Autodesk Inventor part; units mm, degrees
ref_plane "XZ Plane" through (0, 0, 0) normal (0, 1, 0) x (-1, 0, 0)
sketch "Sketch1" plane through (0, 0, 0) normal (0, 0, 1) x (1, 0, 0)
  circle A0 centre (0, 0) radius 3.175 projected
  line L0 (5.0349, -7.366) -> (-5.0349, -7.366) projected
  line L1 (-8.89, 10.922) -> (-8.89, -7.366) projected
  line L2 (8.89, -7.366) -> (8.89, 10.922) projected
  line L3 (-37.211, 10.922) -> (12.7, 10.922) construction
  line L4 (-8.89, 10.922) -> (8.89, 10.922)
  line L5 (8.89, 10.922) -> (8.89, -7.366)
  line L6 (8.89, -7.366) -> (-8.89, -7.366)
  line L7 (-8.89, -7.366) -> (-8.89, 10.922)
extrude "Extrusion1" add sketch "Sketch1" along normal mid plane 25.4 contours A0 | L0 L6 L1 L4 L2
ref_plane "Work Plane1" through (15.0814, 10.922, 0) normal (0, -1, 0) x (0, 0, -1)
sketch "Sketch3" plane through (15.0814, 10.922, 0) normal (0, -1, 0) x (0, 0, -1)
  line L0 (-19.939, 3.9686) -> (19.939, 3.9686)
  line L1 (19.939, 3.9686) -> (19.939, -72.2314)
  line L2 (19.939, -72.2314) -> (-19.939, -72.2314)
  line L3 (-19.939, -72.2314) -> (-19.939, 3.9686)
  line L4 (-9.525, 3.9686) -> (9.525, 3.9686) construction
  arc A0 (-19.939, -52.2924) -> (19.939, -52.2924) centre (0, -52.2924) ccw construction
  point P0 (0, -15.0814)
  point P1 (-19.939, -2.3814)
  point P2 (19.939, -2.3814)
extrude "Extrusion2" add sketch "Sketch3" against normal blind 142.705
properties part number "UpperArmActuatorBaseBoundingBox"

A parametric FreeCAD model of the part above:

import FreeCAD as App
import Part
import Sketcher

V = App.Vector
Q = App.Units.Quantity


def add_polygon(sketch, points):
    """Adds a closed chain of lines whose ends are joined by coincident constraints."""
    first, n = sketch.GeometryCount, len(points)
    for a, b in zip(points, points[1:] + points[:1]):
        sketch.addGeometry(Part.LineSegment(App.Vector(*a, 0), App.Vector(*b, 0)), False)
    for i in range(n):
        sketch.addConstraint(Sketcher.Constraint("Coincident", first + i, 2, first + (i + 1) % n, 1))

doc = App.newDocument("Part")
body = doc.addObject("PartDesign::Body", "Body")

# Sketch on XY plane
sketch1 = body.newObject("Sketcher::SketchObject", "Sketch")
sketch1.AttachmentSupport = (doc.getObject("XY_Plane"), [""])
sketch1.MapMode = "FlatFace"
add_polygon(sketch1, [(9, -7), (9, 11), (-9, 11), (-9, -7)])  # lines 0-3
sketch1.addConstraint(Sketcher.Constraint("Vertical", 0))
sketch1.addConstraint(Sketcher.Constraint("Horizontal", 1))
sketch1.addConstraint(Sketcher.Constraint("Vertical", 2))
sketch1.addConstraint(Sketcher.Constraint("Horizontal", 3))
sketch1.addConstraint(Sketcher.Constraint("DistanceX", 1, 2, 1, 1, Q("0.7 in")))
sketch1.addConstraint(Sketcher.Constraint("DistanceY", 0, 1, 0, 2, Q("0.72 in")))
sketch1.addConstraint(Sketcher.Constraint("DistanceX", -1, 1, 0, 2, Q("0.35 in")))
sketch1.addConstraint(Sketcher.Constraint("DistanceY", -1, 1, 0, 2, Q("0.43 in")))
pad1 = body.newObject("PartDesign::Pad", "Pad")
pad1.Profile = sketch1
pad1.Length = Q("1 in")
pad1.Midplane = True

# Sketch on XZ plane
sketch2 = body.newObject("Sketcher::SketchObject", "Sketch001")
sketch2.AttachmentSupport = (doc.getObject("XZ_Plane"), [""])
sketch2.MapMode = "FlatFace"
sketch2.AttachmentOffset = App.Placement(V(0, 0, -0.43 * 25.4), App.Rotation())
add_polygon(sketch2, [(19, -20), (19, 20), (-57, 20), (-57, -20)])  # lines 0-3
sketch2.addConstraint(Sketcher.Constraint("Vertical", 0))
sketch2.addConstraint(Sketcher.Constraint("Horizontal", 1))
sketch2.addConstraint(Sketcher.Constraint("Vertical", 2))
sketch2.addConstraint(Sketcher.Constraint("Horizontal", 3))
sketch2.addConstraint(Sketcher.Constraint("DistanceX", 1, 2, 1, 1, Q("3 in")))
sketch2.addConstraint(Sketcher.Constraint("DistanceY", 0, 1, 0, 2, Q("1.57 in")))
sketch2.addConstraint(Sketcher.Constraint("DistanceX", -1, 1, 0, 2, Q("0.75 in")))
sketch2.addConstraint(Sketcher.Constraint("DistanceY", -1, 1, 0, 2, Q("0.785 in")))
pad2 = body.newObject("PartDesign::Pad", "Pad001")
pad2.Profile = sketch2
pad2.Length = Q("5.6183071 in")
pad2.Reversed = True

doc.recompute()
